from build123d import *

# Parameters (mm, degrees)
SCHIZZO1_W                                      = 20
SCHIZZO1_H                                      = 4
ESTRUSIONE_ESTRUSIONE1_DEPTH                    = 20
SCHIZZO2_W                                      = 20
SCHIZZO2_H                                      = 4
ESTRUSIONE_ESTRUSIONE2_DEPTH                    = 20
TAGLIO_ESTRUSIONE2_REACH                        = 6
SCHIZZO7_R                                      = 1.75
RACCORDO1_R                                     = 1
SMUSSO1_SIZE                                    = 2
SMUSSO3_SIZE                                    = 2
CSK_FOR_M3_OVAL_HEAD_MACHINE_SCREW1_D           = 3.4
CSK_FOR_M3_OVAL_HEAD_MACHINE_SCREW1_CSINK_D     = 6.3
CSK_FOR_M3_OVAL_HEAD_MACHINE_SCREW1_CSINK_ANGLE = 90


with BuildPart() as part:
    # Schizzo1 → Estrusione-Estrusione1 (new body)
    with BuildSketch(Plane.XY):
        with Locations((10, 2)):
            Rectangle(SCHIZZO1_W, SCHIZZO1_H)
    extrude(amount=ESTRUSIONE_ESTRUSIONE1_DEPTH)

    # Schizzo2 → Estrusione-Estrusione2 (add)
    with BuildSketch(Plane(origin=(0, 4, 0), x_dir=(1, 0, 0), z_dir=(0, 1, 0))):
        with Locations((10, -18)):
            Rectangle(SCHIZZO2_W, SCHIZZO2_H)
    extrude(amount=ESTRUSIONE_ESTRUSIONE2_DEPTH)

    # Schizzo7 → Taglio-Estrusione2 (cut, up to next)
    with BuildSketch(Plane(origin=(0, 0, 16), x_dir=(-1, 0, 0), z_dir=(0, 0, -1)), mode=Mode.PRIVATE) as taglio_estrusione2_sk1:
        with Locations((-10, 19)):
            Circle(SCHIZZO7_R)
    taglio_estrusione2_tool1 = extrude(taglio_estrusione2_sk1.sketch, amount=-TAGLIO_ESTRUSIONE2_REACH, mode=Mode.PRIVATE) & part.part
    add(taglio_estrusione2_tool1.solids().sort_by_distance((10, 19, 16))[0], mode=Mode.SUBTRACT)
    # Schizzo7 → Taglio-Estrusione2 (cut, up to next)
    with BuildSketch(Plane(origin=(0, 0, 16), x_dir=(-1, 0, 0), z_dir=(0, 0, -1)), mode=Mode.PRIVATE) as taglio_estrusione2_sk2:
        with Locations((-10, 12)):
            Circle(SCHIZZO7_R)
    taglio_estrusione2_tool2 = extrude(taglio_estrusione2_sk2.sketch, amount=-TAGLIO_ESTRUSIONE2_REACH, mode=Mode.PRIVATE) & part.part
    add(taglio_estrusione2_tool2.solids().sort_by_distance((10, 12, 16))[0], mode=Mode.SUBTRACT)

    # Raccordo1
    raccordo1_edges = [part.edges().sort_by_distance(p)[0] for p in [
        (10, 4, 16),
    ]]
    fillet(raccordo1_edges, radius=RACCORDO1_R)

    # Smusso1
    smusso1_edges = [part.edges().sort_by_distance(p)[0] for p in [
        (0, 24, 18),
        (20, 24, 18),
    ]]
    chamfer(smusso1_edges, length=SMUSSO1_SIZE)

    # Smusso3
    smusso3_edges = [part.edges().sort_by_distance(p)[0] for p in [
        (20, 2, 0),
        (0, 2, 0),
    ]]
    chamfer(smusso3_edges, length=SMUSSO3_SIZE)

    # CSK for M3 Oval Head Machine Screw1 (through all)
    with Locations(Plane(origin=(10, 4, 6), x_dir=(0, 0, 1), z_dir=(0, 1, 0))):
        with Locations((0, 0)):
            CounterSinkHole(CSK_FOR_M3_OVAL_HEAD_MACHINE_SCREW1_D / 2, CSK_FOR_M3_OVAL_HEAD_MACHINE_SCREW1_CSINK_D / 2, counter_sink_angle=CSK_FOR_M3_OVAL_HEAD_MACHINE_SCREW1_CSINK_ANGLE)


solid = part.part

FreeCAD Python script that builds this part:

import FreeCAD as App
import Part
import Sketcher


def edges_at(feature, points):
    """Names of the edges that pass closest to the given points."""
    edges = feature.Shape.Edges
    near = lambda p: min(range(len(edges)), key=lambda i: edges[i].distToShape(Part.Vertex(*p))[0])
    return sorted({f"Edge{near(p) + 1}" for p in points})

doc = App.newDocument("Part")
body = doc.addObject("PartDesign::Body", "Body")

# Sketch on XY plane
sketch1 = body.newObject("Sketcher::SketchObject", "Sketch")
sketch1.AttachmentSupport = (doc.getObject("XY_Plane"), [""])
sketch1.MapMode = "FlatFace"
sketch1.addGeometry(Part.LineSegment(App.Vector(0, 4, 0), App.Vector(0, 0, 0)), False)
sketch1.addGeometry(Part.LineSegment(App.Vector(0, 0, 0), App.Vector(20, 0, 0)), False)
sketch1.addGeometry(Part.LineSegment(App.Vector(20, 0, 0), App.Vector(20, 4, 0)), False)
sketch1.addGeometry(Part.LineSegment(App.Vector(20, 4, 0), App.Vector(0, 4, 0)), False)
sketch1.addConstraint(Sketcher.Constraint("Coincident", 0, 2, 1, 1))
sketch1.addConstraint(Sketcher.Constraint("Coincident", 1, 2, 2, 1))
sketch1.addConstraint(Sketcher.Constraint("Coincident", 2, 2, 3, 1))
sketch1.addConstraint(Sketcher.Constraint("Coincident", 3, 2, 0, 1))
sketch1.addConstraint(Sketcher.Constraint("Vertical", 0))
sketch1.addConstraint(Sketcher.Constraint("Horizontal", 1))
sketch1.addConstraint(Sketcher.Constraint("Vertical", 2))
sketch1.addConstraint(Sketcher.Constraint("Horizontal", 3))
sketch1.addConstraint(Sketcher.Constraint("Coincident", 0, 2, -1, 1))
sketch1.addConstraint(Sketcher.Constraint("DistanceX", 1, 1, 1, 2, 20.0))
sketch1.addConstraint(Sketcher.Constraint("DistanceY", 0, 2, 0, 1, 4.0))
pad1 = body.newObject("PartDesign::Pad", "Pad")
pad1.Profile = sketch1
pad1.Length = 20

# Sketch on XZ plane
sketch2 = body.newObject("Sketcher::SketchObject", "Sketch001")
sketch2.AttachmentSupport = (doc.getObject("XZ_Plane"), [""])
sketch2.MapMode = "FlatFace"
sketch2.AttachmentOffset = App.Placement(App.Vector(0, 0, -4), App.Rotation())
sketch2.addGeometry(Part.LineSegment(App.Vector(0, 16, 0), App.Vector(0, 20, 0)), False)
sketch2.addGeometry(Part.LineSegment(App.Vector(0, 20, 0), App.Vector(20, 20, 0)), False)
sketch2.addGeometry(Part.LineSegment(App.Vector(20, 20, 0), App.Vector(20, 16, 0)), False)
sketch2.addGeometry(Part.LineSegment(App.Vector(20, 16, 0), App.Vector(0, 16, 0)), False)
sketch2.addConstraint(Sketcher.Constraint("Coincident", 0, 2, 1, 1))
sketch2.addConstraint(Sketcher.Constraint("Coincident", 1, 2, 2, 1))
sketch2.addConstraint(Sketcher.Constraint("Coincident", 2, 2, 3, 1))
sketch2.addConstraint(Sketcher.Constraint("Coincident", 3, 2, 0, 1))
sketch2.addConstraint(Sketcher.Constraint("Vertical", 0))
sketch2.addConstraint(Sketcher.Constraint("Horizontal", 1))
sketch2.addConstraint(Sketcher.Constraint("Vertical", 2))
sketch2.addConstraint(Sketcher.Constraint("Horizontal", 3))
sketch2.addConstraint(Sketcher.Constraint("PointOnObject", 0, 2, -2))
sketch2.addConstraint(Sketcher.Constraint("DistanceX", 1, 1, 1, 2, 20.0))
sketch2.addConstraint(Sketcher.Constraint("DistanceY", 0, 1, 0, 2, 4.0))
sketch2.addConstraint(Sketcher.Constraint("DistanceY", -1, 1, 0, 2, 20.0))
pad2 = body.newObject("PartDesign::Pad", "Pad001")
pad2.Profile = sketch2
pad2.Length = 20
pad2.Reversed = True

# Sketch on XY plane
sketch3 = body.newObject("Sketcher::SketchObject", "Sketch002")
sketch3.AttachmentSupport = (doc.getObject("XY_Plane"), [""])
sketch3.MapMode = "FlatFace"
sketch3.AttachmentOffset = App.Placement(App.Vector(0, 0, 16), App.Rotation())
sketch3.addGeometry(Part.Circle(App.Vector(10, 19, 0), App.Vector(0, 0, 1), 1.8), False)
sketch3.addConstraint(Sketcher.Constraint("Diameter", 0, 3.5))
sketch3.addConstraint(Sketcher.Constraint("DistanceX", -1, 1, 0, 3, 10.0))
sketch3.addConstraint(Sketcher.Constraint("DistanceY", -1, 1, 0, 3, 19.0))
pocket1 = body.newObject("PartDesign::Pocket", "Pocket")
pocket1.Profile = sketch3
pocket1.Type = "UpToFirst"
pocket1.Reversed = True

# Sketch on XY plane
sketch4 = body.newObject("Sketcher::SketchObject", "Sketch003")
sketch4.AttachmentSupport = (doc.getObject("XY_Plane"), [""])
sketch4.MapMode = "FlatFace"
sketch4.AttachmentOffset = App.Placement(App.Vector(0, 0, 16), App.Rotation())
sketch4.addGeometry(Part.Circle(App.Vector(10, 12, 0), App.Vector(0, 0, 1), 1.8), False)
sketch4.addConstraint(Sketcher.Constraint("Diameter", 0, 3.5))
sketch4.addConstraint(Sketcher.Constraint("DistanceX", -1, 1, 0, 3, 10.0))
sketch4.addConstraint(Sketcher.Constraint("DistanceY", -1, 1, 0, 3, 12.0))
pocket2 = body.newObject("PartDesign::Pocket", "Pocket001")
pocket2.Profile = sketch4
pocket2.Type = "UpToFirst"
pocket2.Reversed = True
doc.recompute()

fillet = body.newObject("PartDesign::Fillet", "Fillet")
fillet.Base = (pocket2, edges_at(pocket2, [(10, 4, 16)]))
fillet.Radius = 1
doc.recompute()

chamfer = body.newObject("PartDesign::Chamfer", "Chamfer")
chamfer.Base = (fillet, edges_at(fillet, [(0, 24, 18), (20, 24, 18)]))
chamfer.Size = 2
doc.recompute()

chamfer2 = body.newObject("PartDesign::Chamfer", "Chamfer001")
chamfer2.Base = (chamfer, edges_at(chamfer, [(20, 2, 0), (0, 2, 0)]))
chamfer2.Size = 2

# Sketch on XZ plane
sketch5 = body.newObject("Sketcher::SketchObject", "Sketch004")
sketch5.AttachmentSupport = (doc.getObject("XZ_Plane"), [""])
sketch5.MapMode = "FlatFace"
sketch5.AttachmentOffset = App.Placement(App.Vector(0, 0, -4), App.Rotation())
sketch5.addGeometry(Part.Circle(App.Vector(10, 6, 0), App.Vector(0, 0, 1), 1.7), False)
sketch5.addConstraint(Sketcher.Constraint("Diameter", 0, 3.4))
sketch5.addConstraint(Sketcher.Constraint("DistanceX", -1, 1, 0, 3, 10.0))
sketch5.addConstraint(Sketcher.Constraint("DistanceY", -1, 1, 0, 3, 6.0))
doc.recompute()
hole = body.newObject("PartDesign::Hole", "Hole")
hole.Profile = sketch5
hole.ThreadType = "None"
hole.Diameter = 3.4
hole.DepthType = "ThroughAll"
hole.HoleCutType = "Countersink"
hole.HoleCutDiameter = 6.3
hole.HoleCutCountersinkAngle = 90
hole.Reversed = True

doc.recompute()
